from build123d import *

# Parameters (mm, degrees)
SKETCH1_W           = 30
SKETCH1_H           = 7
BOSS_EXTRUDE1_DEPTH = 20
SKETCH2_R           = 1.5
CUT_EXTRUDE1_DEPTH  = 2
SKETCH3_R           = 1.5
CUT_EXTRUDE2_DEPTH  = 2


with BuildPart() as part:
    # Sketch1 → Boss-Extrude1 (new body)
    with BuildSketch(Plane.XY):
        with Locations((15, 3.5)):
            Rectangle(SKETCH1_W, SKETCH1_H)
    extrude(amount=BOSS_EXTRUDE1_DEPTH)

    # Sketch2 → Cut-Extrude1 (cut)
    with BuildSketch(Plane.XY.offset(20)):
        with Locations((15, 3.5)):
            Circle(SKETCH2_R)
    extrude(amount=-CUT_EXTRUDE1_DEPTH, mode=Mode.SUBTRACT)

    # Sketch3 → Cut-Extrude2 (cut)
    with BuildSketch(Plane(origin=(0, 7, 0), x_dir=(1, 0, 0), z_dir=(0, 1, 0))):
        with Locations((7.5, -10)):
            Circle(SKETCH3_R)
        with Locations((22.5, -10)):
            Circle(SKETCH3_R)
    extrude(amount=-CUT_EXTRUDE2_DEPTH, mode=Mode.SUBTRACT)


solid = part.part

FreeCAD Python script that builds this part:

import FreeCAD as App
import Part
import Sketcher
from FreeCAD import Vector

doc = App.newDocument("Part")
body = doc.addObject("PartDesign::Body", "Body")

sketch1 = doc.addObject("Sketcher::SketchObject", "Sketch")
body.addObject(sketch1)
sketch1.AttachmentSupport = (doc.XY_Plane, [""])
sketch1.MapMode = "FlatFace"
sketch1.addGeometry(Part.LineSegment(Vector(0, 7, 0), Vector(0, 0, 0)), False)
sketch1.addGeometry(Part.LineSegment(Vector(0, 0, 0), Vector(30, 0, 0)), False)
sketch1.addGeometry(Part.LineSegment(Vector(30, 0, 0), Vector(30, 7, 0)), False)
sketch1.addGeometry(Part.LineSegment(Vector(30, 7, 0), Vector(0, 7, 0)), False)
sketch1.addConstraint(Sketcher.Constraint("Coincident", 0, 2, 1, 1))
sketch1.addConstraint(Sketcher.Constraint("Coincident", 1, 2, 2, 1))
sketch1.addConstraint(Sketcher.Constraint("Coincident", 2, 2, 3, 1))
sketch1.addConstraint(Sketcher.Constraint("Coincident", 3, 2, 0, 1))
sketch1.addConstraint(Sketcher.Constraint("Vertical", 0))
sketch1.addConstraint(Sketcher.Constraint("Horizontal", 1))
sketch1.addConstraint(Sketcher.Constraint("Vertical", 2))
sketch1.addConstraint(Sketcher.Constraint("Horizontal", 3))
sketch1.addConstraint(Sketcher.Constraint("Coincident", 0, 2, -1, 1))
sketch1.addConstraint(Sketcher.Constraint("DistanceX", 1, 1, 1, 2, 30.0))
sketch1.addConstraint(Sketcher.Constraint("DistanceY", 0, 2, 0, 1, 7.0))
pad1 = doc.addObject("PartDesign::Pad", "Pad")
body.addObject(pad1)
pad1.Profile = sketch1
pad1.Length = 20

sketch2 = doc.addObject("Sketcher::SketchObject", "Sketch001")
body.addObject(sketch2)
sketch2.AttachmentSupport = (doc.XY_Plane, [""])
sketch2.MapMode = "FlatFace"
sketch2.AttachmentOffset = App.Placement(Vector(0, 0, 20), App.Rotation())
sketch2.addGeometry(Part.Circle(Vector(15, 3.5, 0), Vector(0, 0, 1), 1.5), False)
sketch2.addConstraint(Sketcher.Constraint("Diameter", 0, 3.0))
sketch2.addConstraint(Sketcher.Constraint("DistanceX", -1, 1, 0, 3, 15.0))
sketch2.addConstraint(Sketcher.Constraint("DistanceY", -1, 1, 0, 3, 3.5))
pocket1 = doc.addObject("PartDesign::Pocket", "Pocket")
body.addObject(pocket1)
pocket1.Profile = sketch2
pocket1.Length = 2

sketch3 = doc.addObject("Sketcher::SketchObject", "Sketch002")
body.addObject(sketch3)
sketch3.AttachmentSupport = (doc.XZ_Plane, [""])
sketch3.MapMode = "FlatFace"
sketch3.AttachmentOffset = App.Placement(Vector(0, 0, -7), App.Rotation())
sketch3.addGeometry(Part.Circle(Vector(7.5, 10, 0), Vector(0, 0, 1), 1.5), False)
sketch3.addGeometry(Part.Circle(Vector(22.5, 10, 0), Vector(0, 0, 1), 1.5), False)
sketch3.addConstraint(Sketcher.Constraint("Equal", 0, 1))
sketch3.addConstraint(Sketcher.Constraint("Horizontal", 0, 3, 1, 3))
sketch3.addConstraint(Sketcher.Constraint("Diameter", 0, 3.0))
sketch3.addConstraint(Sketcher.Constraint("DistanceY", -1, 1, 0, 3, 10.0))
sketch3.addConstraint(Sketcher.Constraint("DistanceX", 0, 3, 1, 3, 15.0))
sketch3.addConstraint(Sketcher.Constraint("DistanceX", -1, 1, 0, 3, 7.5))
pocket2 = doc.addObject("PartDesign::Pocket", "Pocket001")
body.addObject(pocket2)
pocket2.Profile = sketch3
pocket2.Length = 2
pocket2.Reversed = True

doc.recompute()
